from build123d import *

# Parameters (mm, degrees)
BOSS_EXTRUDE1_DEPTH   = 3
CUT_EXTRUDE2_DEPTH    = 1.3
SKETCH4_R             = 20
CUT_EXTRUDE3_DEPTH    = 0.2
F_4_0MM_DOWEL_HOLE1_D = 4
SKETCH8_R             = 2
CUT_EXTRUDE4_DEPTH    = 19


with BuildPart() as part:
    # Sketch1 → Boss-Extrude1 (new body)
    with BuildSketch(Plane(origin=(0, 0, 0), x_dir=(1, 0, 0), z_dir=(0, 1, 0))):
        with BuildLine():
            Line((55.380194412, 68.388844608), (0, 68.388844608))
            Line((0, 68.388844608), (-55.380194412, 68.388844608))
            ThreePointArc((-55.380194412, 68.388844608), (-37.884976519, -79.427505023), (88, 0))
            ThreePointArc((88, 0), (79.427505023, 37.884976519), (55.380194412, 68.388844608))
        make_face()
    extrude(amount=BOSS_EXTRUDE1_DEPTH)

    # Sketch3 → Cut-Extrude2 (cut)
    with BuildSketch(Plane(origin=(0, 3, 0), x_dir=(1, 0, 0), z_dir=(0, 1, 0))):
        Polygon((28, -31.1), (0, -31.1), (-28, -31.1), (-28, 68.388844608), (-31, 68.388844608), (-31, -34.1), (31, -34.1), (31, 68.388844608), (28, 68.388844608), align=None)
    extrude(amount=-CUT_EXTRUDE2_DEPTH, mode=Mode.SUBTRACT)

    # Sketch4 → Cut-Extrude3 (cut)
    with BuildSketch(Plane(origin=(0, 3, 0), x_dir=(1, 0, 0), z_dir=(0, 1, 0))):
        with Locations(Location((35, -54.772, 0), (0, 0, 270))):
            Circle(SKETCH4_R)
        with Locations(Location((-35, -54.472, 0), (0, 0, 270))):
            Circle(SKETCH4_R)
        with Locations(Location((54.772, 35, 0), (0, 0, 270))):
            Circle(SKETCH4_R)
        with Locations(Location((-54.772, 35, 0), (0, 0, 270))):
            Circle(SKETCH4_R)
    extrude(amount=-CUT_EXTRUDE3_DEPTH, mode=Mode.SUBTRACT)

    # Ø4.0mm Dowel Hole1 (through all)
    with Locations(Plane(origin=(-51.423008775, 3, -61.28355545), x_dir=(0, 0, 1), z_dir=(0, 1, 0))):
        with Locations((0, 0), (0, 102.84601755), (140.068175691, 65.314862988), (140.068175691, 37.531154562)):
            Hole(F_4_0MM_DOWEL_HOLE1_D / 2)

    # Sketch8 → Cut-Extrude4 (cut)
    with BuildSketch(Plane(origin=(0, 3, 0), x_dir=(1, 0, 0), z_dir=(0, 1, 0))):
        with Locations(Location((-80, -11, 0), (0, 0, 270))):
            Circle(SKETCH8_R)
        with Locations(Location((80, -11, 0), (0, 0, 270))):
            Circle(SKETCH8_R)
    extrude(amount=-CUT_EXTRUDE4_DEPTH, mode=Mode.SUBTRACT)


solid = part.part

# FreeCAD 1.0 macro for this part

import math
import FreeCAD as App
import Part
import Sketcher
from FreeCAD import Vector
Q = App.Units.Quantity

doc = App.newDocument("Part")
body = doc.addObject("PartDesign::Body", "Body")

sketch1 = body.newObject("Sketcher::SketchObject", "Sketch")
sketch1.AttachmentSupport = (doc.getObject("XZ_Plane"), [""])
sketch1.MapMode = "FlatFace"
sketch1.addGeometry([
    Part.LineSegment(Vector(55, -68, 0), Vector(-55, -68, 0)),
    Part.ArcOfCircle(Part.Circle(Vector(0, 0, 0), Vector(0, 0, 1), 88), math.radians(0), math.radians(231)),
    Part.ArcOfCircle(Part.Circle(Vector(0, 0, 0), Vector(0, 0, 1), 88), math.radians(-51), math.radians(0)),
], False)
sketch1.addConstraint([
    Sketcher.Constraint("Coincident", 0, 2, 1, 2),
    Sketcher.Constraint("Tangent", 1, 1, 2, 2),
    Sketcher.Constraint("Coincident", 2, 1, 0, 1),
    Sketcher.Constraint("Horizontal", 0),
    Sketcher.Constraint("Coincident", 1, 3, -1, 1),
    Sketcher.Constraint("Equal", 1, 2),
    Sketcher.Constraint("PointOnObject", 1, 1, -1),
    Sketcher.Constraint("Radius", 1, Q("88 mm")),
    Sketcher.Constraint("DistanceX", 0, 2, 0, 1, Q("110.760389 mm")),
])
pad1 = body.newObject("PartDesign::Pad", "Pad")
pad1.Profile = sketch1
pad1.Length = 3
pad1.Reversed = True

sketch2 = body.newObject("Sketcher::SketchObject", "Sketch001")
sketch2.AttachmentSupport = (doc.getObject("XZ_Plane"), [""])
sketch2.MapMode = "FlatFace"
sketch2.AttachmentOffset = App.Placement(Vector(0, 0, -3), App.Rotation())
sketch2.addGeometry([
    Part.LineSegment(Vector(28, 31.1, 0), Vector(-28, 31.1, 0)),
    Part.LineSegment(Vector(-28, 31.1, 0), Vector(-28, -68.4, 0)),
    Part.LineSegment(Vector(-28, -68.4, 0), Vector(-31, -68.4, 0)),
    Part.LineSegment(Vector(-31, -68.4, 0), Vector(-31, 34.1, 0)),
    Part.LineSegment(Vector(-31, 34.1, 0), Vector(31, 34.1, 0)),
    Part.LineSegment(Vector(31, 34.1, 0), Vector(31, -68.4, 0)),
    Part.LineSegment(Vector(31, -68.4, 0), Vector(28, -68.4, 0)),
    Part.LineSegment(Vector(28, -68.4, 0), Vector(28, 31.1, 0)),
], False)
sketch2.addConstraint([
    Sketcher.Constraint("Coincident", 0, 2, 1, 1),
    Sketcher.Constraint("Coincident", 1, 2, 2, 1),
    Sketcher.Constraint("Coincident", 2, 2, 3, 1),
    Sketcher.Constraint("Coincident", 3, 2, 4, 1),
    Sketcher.Constraint("Coincident", 4, 2, 5, 1),
    Sketcher.Constraint("Coincident", 5, 2, 6, 1),
    Sketcher.Constraint("Coincident", 6, 2, 7, 1),
    Sketcher.Constraint("Coincident", 7, 2, 0, 1),
    Sketcher.Constraint("Horizontal", 0),
    Sketcher.Constraint("Vertical", 1),
    Sketcher.Constraint("Horizontal", 2),
    Sketcher.Constraint("Vertical", 3),
    Sketcher.Constraint("Horizontal", 4),
    Sketcher.Constraint("Vertical", 5),
    Sketcher.Constraint("Horizontal", 6),
    Sketcher.Constraint("Vertical", 7),
    Sketcher.Constraint("Symmetric", 2, 2, 5, 2, -2),
    Sketcher.Constraint("Equal", 2, 6),
    Sketcher.Constraint("DistanceX", 0, 2, 0, 1, Q("56 mm")),
    Sketcher.Constraint("DistanceX", 2, 2, 2, 1, Q("3 mm")),
    Sketcher.Constraint("DistanceY", 0, 2, 3, 2, Q("3 mm")),
    Sketcher.Constraint("DistanceY", -1, 1, 0, 2, Q("31.1 mm")),
    Sketcher.Constraint("DistanceY", 1, 2, 1, 1, Q("99.488845 mm")),
])
pocket1 = body.newObject("PartDesign::Pocket", "Pocket")
pocket1.Profile = sketch2
pocket1.Length = 1.3
pocket1.Reversed = True

sketch3 = body.newObject("Sketcher::SketchObject", "Sketch002")
sketch3.AttachmentSupport = (doc.getObject("XZ_Plane"), [""])
sketch3.MapMode = "FlatFace"
sketch3.AttachmentOffset = App.Placement(Vector(0, 0, -3), App.Rotation())
sketch3.addGeometry([
    Part.Circle(Vector(35, 55, 0), Vector(0, 0, 1), 20),
    Part.Circle(Vector(-35, 54, 0), Vector(0, 0, 1), 20),
    Part.Circle(Vector(55, -35, 0), Vector(0, 0, 1), 20),
    Part.Circle(Vector(-55, -35, 0), Vector(0, 0, 1), 20),
], False)
sketch3.addConstraint([
    Sketcher.Constraint("Equal", 0, 1),
    Sketcher.Constraint("Equal", 1, 2),
    Sketcher.Constraint("Equal", 2, 3),
    Sketcher.Constraint("Symmetric", 2, 3, 3, 3, -2),
    Sketcher.Constraint("Diameter", 0, Q("40 mm")),
    Sketcher.Constraint("DistanceX", -1, 1, 0, 3, Q("35 mm")),
    Sketcher.Constraint("DistanceX", 1, 3, -1, 1, Q("35 mm")),
    Sketcher.Constraint("DistanceY", 2, 3, -1, 1, Q("35 mm")),
    Sketcher.Constraint("DistanceY", 1, 3, 0, 3, Q("0.3 mm")),
    Sketcher.Constraint("DistanceY", -1, 1, 0, 3, Q("54.772 mm")),
    Sketcher.Constraint("DistanceX", -1, 1, 2, 3, Q("54.772 mm")),
])
pocket2 = body.newObject("PartDesign::Pocket", "Pocket001")
pocket2.Profile = sketch3
pocket2.Length = 0.2
pocket2.Reversed = True

sketch4 = body.newObject("Sketcher::SketchObject", "Sketch003")
sketch4.AttachmentSupport = (doc.getObject("XZ_Plane"), [""])
sketch4.MapMode = "FlatFace"
sketch4.AttachmentOffset = App.Placement(Vector(0, 0, -3), App.Rotation())
sketch4.addGeometry([
    Part.Circle(Vector(-51.4, -61.3, 0), Vector(0, 0, 1), 2),
    Part.Circle(Vector(51.4, -61.3, 0), Vector(0, 0, 1), 2),
    Part.Circle(Vector(13.9, 78.8, 0), Vector(0, 0, 1), 2),
    Part.Circle(Vector(-13.9, 78.8, 0), Vector(0, 0, 1), 2),
], False)
sketch4.addConstraint([
    Sketcher.Constraint("Equal", 0, 1),
    Sketcher.Constraint("Equal", 1, 2),
    Sketcher.Constraint("Equal", 2, 3),
    Sketcher.Constraint("Symmetric", 0, 3, 1, 3, -2),
    Sketcher.Constraint("Symmetric", 2, 3, 3, 3, -2),
    Sketcher.Constraint("Diameter", 0, Q("4 mm")),
    Sketcher.Constraint("DistanceX", 0, 3, -1, 1, Q("51.423009 mm")),
    Sketcher.Constraint("DistanceY", -1, 1, 2, 3, Q("78.78462 mm")),
    Sketcher.Constraint("DistanceX", 3, 3, 2, 3, Q("27.783708 mm")),
    Sketcher.Constraint("DistanceY", 0, 3, -1, 1, Q("61.283555 mm")),
])
doc.recompute()
hole = body.newObject("PartDesign::Hole", "Hole")
hole.Profile = sketch4
hole.ThreadType = "None"
hole.Diameter = 4
hole.DepthType = "ThroughAll"
hole.Reversed = True

sketch5 = body.newObject("Sketcher::SketchObject", "Sketch004")
sketch5.AttachmentSupport = (doc.getObject("XZ_Plane"), [""])
sketch5.MapMode = "FlatFace"
sketch5.AttachmentOffset = App.Placement(Vector(0, 0, -3), App.Rotation())
sketch5.addGeometry([
    Part.Circle(Vector(-80, 11, 0), Vector(0, 0, 1), 2),
    Part.Circle(Vector(80, 11, 0), Vector(0, 0, 1), 2),
], False)
sketch5.addConstraint([
    Sketcher.Constraint("Equal", 0, 1),
    Sketcher.Constraint("Symmetric", 0, 3, 1, 3, -2),
    Sketcher.Constraint("Diameter", 0, Q("4 mm")),
    Sketcher.Constraint("DistanceX", 0, 3, -1, 1, Q("80 mm")),
    Sketcher.Constraint("DistanceY", -1, 1, 0, 3, Q("11 mm")),
])
pocket3 = body.newObject("PartDesign::Pocket", "Pocket002")
pocket3.Profile = sketch5
pocket3.Length = 19
pocket3.Reversed = True

doc.recompute()
